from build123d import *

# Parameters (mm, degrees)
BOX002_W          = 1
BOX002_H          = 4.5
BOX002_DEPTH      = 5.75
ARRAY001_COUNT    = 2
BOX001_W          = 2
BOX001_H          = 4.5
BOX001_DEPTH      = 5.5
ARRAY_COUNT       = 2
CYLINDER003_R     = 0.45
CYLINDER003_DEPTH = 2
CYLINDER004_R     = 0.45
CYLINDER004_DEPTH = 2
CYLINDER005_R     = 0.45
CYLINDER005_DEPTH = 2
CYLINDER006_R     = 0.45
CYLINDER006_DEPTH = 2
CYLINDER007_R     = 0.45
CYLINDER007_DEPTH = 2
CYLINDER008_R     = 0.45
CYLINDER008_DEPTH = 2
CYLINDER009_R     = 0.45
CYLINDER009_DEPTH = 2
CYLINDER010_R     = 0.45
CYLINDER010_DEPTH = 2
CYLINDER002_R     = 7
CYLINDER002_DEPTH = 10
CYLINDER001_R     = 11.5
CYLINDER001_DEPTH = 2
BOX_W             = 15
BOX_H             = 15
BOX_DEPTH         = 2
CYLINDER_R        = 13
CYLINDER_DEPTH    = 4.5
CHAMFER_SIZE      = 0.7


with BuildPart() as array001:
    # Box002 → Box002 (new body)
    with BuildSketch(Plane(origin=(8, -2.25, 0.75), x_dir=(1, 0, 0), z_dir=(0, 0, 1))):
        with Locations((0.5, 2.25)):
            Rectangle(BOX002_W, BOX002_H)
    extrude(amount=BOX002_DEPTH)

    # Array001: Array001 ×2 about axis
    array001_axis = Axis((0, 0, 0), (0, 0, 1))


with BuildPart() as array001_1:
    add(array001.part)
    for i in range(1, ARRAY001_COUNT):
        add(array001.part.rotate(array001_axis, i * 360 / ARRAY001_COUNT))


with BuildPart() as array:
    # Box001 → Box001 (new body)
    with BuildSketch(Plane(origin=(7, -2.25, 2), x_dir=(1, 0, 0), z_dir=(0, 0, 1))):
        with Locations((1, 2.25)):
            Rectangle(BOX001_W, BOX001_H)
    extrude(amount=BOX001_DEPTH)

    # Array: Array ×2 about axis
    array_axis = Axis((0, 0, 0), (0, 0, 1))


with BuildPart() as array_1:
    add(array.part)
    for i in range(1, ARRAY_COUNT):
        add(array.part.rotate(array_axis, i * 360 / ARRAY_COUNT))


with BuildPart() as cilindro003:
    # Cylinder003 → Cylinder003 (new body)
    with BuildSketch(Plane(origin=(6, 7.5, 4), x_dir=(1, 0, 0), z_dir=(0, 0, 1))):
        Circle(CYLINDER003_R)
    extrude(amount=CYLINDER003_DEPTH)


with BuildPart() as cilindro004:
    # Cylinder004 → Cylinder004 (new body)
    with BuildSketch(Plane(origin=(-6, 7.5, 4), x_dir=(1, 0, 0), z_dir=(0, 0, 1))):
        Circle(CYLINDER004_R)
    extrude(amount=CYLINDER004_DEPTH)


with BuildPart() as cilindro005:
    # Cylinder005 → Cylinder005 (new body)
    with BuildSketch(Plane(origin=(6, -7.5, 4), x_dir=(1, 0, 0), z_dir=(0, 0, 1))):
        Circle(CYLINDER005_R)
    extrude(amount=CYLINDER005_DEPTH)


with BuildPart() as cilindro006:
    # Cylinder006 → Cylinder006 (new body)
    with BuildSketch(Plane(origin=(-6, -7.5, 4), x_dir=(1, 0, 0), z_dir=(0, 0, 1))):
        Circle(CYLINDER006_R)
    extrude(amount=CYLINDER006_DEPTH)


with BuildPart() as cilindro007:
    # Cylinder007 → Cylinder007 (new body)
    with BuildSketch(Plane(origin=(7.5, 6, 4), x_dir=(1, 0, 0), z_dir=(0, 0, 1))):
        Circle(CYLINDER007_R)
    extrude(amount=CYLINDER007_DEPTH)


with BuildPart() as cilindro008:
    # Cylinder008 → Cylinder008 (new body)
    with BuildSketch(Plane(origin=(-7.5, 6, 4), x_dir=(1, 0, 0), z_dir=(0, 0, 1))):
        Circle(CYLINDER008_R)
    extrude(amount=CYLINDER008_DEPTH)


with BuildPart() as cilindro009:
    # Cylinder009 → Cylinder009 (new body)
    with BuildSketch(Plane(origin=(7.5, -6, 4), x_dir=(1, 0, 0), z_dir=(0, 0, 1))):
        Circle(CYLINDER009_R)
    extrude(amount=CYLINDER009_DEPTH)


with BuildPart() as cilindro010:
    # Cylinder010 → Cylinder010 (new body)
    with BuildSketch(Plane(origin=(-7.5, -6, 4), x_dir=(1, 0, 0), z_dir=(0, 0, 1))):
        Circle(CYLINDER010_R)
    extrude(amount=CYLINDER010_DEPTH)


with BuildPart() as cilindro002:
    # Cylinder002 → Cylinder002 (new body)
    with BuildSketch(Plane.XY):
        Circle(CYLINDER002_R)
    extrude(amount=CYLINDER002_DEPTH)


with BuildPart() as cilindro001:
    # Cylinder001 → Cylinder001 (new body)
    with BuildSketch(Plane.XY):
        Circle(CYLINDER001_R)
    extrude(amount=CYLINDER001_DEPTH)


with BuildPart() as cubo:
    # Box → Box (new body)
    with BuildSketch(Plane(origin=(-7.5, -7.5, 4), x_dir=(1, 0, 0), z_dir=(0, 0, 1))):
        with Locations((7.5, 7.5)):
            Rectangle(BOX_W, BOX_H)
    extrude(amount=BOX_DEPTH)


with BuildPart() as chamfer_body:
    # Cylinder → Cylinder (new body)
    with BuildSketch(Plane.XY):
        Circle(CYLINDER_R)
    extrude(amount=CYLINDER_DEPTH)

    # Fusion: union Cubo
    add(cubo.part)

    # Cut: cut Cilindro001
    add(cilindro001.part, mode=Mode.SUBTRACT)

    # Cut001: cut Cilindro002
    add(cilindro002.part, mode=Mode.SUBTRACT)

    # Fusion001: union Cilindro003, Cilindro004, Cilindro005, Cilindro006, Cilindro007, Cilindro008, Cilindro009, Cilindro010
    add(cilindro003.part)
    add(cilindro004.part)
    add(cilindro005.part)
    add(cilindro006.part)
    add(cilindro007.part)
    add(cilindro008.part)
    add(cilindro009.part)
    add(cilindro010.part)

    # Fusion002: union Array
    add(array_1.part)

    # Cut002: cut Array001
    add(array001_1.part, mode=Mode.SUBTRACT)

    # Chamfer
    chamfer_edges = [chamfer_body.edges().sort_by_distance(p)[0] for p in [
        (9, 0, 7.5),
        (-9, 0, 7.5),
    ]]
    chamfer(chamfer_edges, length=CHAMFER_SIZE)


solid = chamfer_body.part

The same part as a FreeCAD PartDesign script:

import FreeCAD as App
import Part
import Sketcher
Q = App.Units.Quantity


def edges_at(feature, points):
    """Names of the edges that pass closest to the given points."""
    edges = feature.Shape.Edges
    near = lambda p: min(range(len(edges)), key=lambda i: edges[i].distToShape(Part.Vertex(*p))[0])
    return sorted({f"Edge{near(p) + 1}" for p in points})

doc = App.newDocument("Part")
body = doc.addObject("PartDesign::Body", "Body")

# Sketch on XY plane
sketch1 = body.newObject("Sketcher::SketchObject", "Sketch")
sketch1.AttachmentSupport = (doc.getObject("XY_Plane"), [""])
sketch1.MapMode = "FlatFace"
sketch1.AttachmentOffset = App.Placement(App.Vector(0, 0, 0.75), App.Rotation())
sketch1.addGeometry(Part.LineSegment(App.Vector(8, 2.2, 0), App.Vector(8, -2.2, 0)), False)
sketch1.addGeometry(Part.LineSegment(App.Vector(8, -2.2, 0), App.Vector(9, -2.2, 0)), False)
sketch1.addGeometry(Part.LineSegment(App.Vector(9, -2.2, 0), App.Vector(9, 2.2, 0)), False)
sketch1.addGeometry(Part.LineSegment(App.Vector(9, 2.2, 0), App.Vector(8, 2.2, 0)), False)
sketch1.addConstraint(Sketcher.Constraint("Coincident", 0, 2, 1, 1))
sketch1.addConstraint(Sketcher.Constraint("Coincident", 1, 2, 2, 1))
sketch1.addConstraint(Sketcher.Constraint("Coincident", 2, 2, 3, 1))
sketch1.addConstraint(Sketcher.Constraint("Coincident", 3, 2, 0, 1))
sketch1.addConstraint(Sketcher.Constraint("Vertical", 0))
sketch1.addConstraint(Sketcher.Constraint("Horizontal", 1))
sketch1.addConstraint(Sketcher.Constraint("Vertical", 2))
sketch1.addConstraint(Sketcher.Constraint("Horizontal", 3))
sketch1.addConstraint(Sketcher.Constraint("DistanceX", 1, 1, 1, 2, Q("1 mm")))
sketch1.addConstraint(Sketcher.Constraint("DistanceY", 0, 2, 0, 1, Q("4.5 mm")))
sketch1.addConstraint(Sketcher.Constraint("DistanceX", -1, 1, 0, 2, Q("8 mm")))
sketch1.addConstraint(Sketcher.Constraint("DistanceY", 0, 2, -1, 1, Q("2.25 mm")))
pad1 = body.newObject("PartDesign::Pad", "Pad")
pad1.Profile = sketch1
pad1.Length = 5.75
body2 = doc.addObject("PartDesign::Body", "Body001")
body2.AllowCompound = True
doc.recompute()

body2.BaseFeature = body
doc.recompute()

body.Placement = App.Placement(App.Vector(0, 0, 0), App.Rotation(App.Vector(0, 0, 1), 180))
boolean = body2.newObject("PartDesign::Boolean", "Boolean")
boolean.Type = "Fuse"
boolean.addObjects([body])
body3 = doc.addObject("PartDesign::Body", "Body002")

# Sketch on XY plane
sketch2 = body3.newObject("Sketcher::SketchObject", "Sketch001")
sketch2.AttachmentSupport = (doc.getObject("XY_Plane002"), [""])
sketch2.MapMode = "FlatFace"
sketch2.AttachmentOffset = App.Placement(App.Vector(0, 0, 2), App.Rotation())
sketch2.addGeometry(Part.LineSegment(App.Vector(7, 2.2, 0), App.Vector(7, -2.2, 0)), False)
sketch2.addGeometry(Part.LineSegment(App.Vector(7, -2.2, 0), App.Vector(9, -2.2, 0)), False)
sketch2.addGeometry(Part.LineSegment(App.Vector(9, -2.2, 0), App.Vector(9, 2.2, 0)), False)
sketch2.addGeometry(Part.LineSegment(App.Vector(9, 2.2, 0), App.Vector(7, 2.2, 0)), False)
sketch2.addConstraint(Sketcher.Constraint("Coincident", 0, 2, 1, 1))
sketch2.addConstraint(Sketcher.Constraint("Coincident", 1, 2, 2, 1))
sketch2.addConstraint(Sketcher.Constraint("Coincident", 2, 2, 3, 1))
sketch2.addConstraint(Sketcher.Constraint("Coincident", 3, 2, 0, 1))
sketch2.addConstraint(Sketcher.Constraint("Vertical", 0))
sketch2.addConstraint(Sketcher.Constraint("Horizontal", 1))
sketch2.addConstraint(Sketcher.Constraint("Vertical", 2))
sketch2.addConstraint(Sketcher.Constraint("Horizontal", 3))
sketch2.addConstraint(Sketcher.Constraint("DistanceX", 1, 1, 1, 2, Q("2 mm")))
sketch2.addConstraint(Sketcher.Constraint("DistanceY", 0, 2, 0, 1, Q("4.5 mm")))
sketch2.addConstraint(Sketcher.Constraint("DistanceX", -1, 1, 0, 2, Q("7 mm")))
sketch2.addConstraint(Sketcher.Constraint("DistanceY", 0, 2, -1, 1, Q("2.25 mm")))
pad2 = body3.newObject("PartDesign::Pad", "Pad001")
pad2.Profile = sketch2
pad2.Length = 5.5
body4 = doc.addObject("PartDesign::Body", "Body003")
body4.AllowCompound = True
doc.recompute()

body4.BaseFeature = body3
doc.recompute()

body3.Placement = App.Placement(App.Vector(0, 0, 0), App.Rotation(App.Vector(0, 0, 1), 180))
boolean2 = body4.newObject("PartDesign::Boolean", "Boolean001")
boolean2.Type = "Fuse"
boolean2.addObjects([body3])
body5 = doc.addObject("PartDesign::Body", "Body004")

# Sketch on XY plane
sketch3 = body5.newObject("Sketcher::SketchObject", "Sketch002")
sketch3.AttachmentSupport = (doc.getObject("XY_Plane004"), [""])
sketch3.MapMode = "FlatFace"
sketch3.AttachmentOffset = App.Placement(App.Vector(0, 0, 4), App.Rotation())
sketch3.addGeometry(Part.Circle(App.Vector(6, 7.5, 0), App.Vector(0, 0, 1), 0.45), False)
sketch3.addConstraint(Sketcher.Constraint("Diameter", 0, Q("0.9 mm")))
sketch3.addConstraint(Sketcher.Constraint("DistanceX", -1, 1, 0, 3, Q("6 mm")))
sketch3.addConstraint(Sketcher.Constraint("DistanceY", -1, 1, 0, 3, Q("7.5 mm")))
pad3 = body5.newObject("PartDesign::Pad", "Pad002")
pad3.Profile = sketch3
pad3.Length = 2
body6 = doc.addObject("PartDesign::Body", "Body005")

# Sketch on XY plane
sketch4 = body6.newObject("Sketcher::SketchObject", "Sketch003")
sketch4.AttachmentSupport = (doc.getObject("XY_Plane005"), [""])
sketch4.MapMode = "FlatFace"
sketch4.AttachmentOffset = App.Placement(App.Vector(0, 0, 4), App.Rotation())
sketch4.addGeometry(Part.Circle(App.Vector(-6, 7.5, 0), App.Vector(0, 0, 1), 0.45), False)
sketch4.addConstraint(Sketcher.Constraint("Diameter", 0, Q("0.9 mm")))
sketch4.addConstraint(Sketcher.Constraint("DistanceX", 0, 3, -1, 1, Q("6 mm")))
sketch4.addConstraint(Sketcher.Constraint("DistanceY", -1, 1, 0, 3, Q("7.5 mm")))
pad4 = body6.newObject("PartDesign::Pad", "Pad003")
pad4.Profile = sketch4
pad4.Length = 2
body7 = doc.addObject("PartDesign::Body", "Body006")

# Sketch on XY plane
sketch5 = body7.newObject("Sketcher::SketchObject", "Sketch004")
sketch5.AttachmentSupport = (doc.getObject("XY_Plane006"), [""])
sketch5.MapMode = "FlatFace"
sketch5.AttachmentOffset = App.Placement(App.Vector(0, 0, 4), App.Rotation())
sketch5.addGeometry(Part.Circle(App.Vector(6, -7.5, 0), App.Vector(0, 0, 1), 0.45), False)
sketch5.addConstraint(Sketcher.Constraint("Diameter", 0, Q("0.9 mm")))
sketch5.addConstraint(Sketcher.Constraint("DistanceX", -1, 1, 0, 3, Q("6 mm")))
sketch5.addConstraint(Sketcher.Constraint("DistanceY", 0, 3, -1, 1, Q("7.5 mm")))
pad5 = body7.newObject("PartDesign::Pad", "Pad004")
pad5.Profile = sketch5
pad5.Length = 2
body8 = doc.addObject("PartDesign::Body", "Body007")

# Sketch on XY plane
sketch6 = body8.newObject("Sketcher::SketchObject", "Sketch005")
sketch6.AttachmentSupport = (doc.getObject("XY_Plane007"), [""])
sketch6.MapMode = "FlatFace"
sketch6.AttachmentOffset = App.Placement(App.Vector(0, 0, 4), App.Rotation())
sketch6.addGeometry(Part.Circle(App.Vector(-6, -7.5, 0), App.Vector(0, 0, 1), 0.45), False)
sketch6.addConstraint(Sketcher.Constraint("Diameter", 0, Q("0.9 mm")))
sketch6.addConstraint(Sketcher.Constraint("DistanceX", 0, 3, -1, 1, Q("6 mm")))
sketch6.addConstraint(Sketcher.Constraint("DistanceY", 0, 3, -1, 1, Q("7.5 mm")))
pad6 = body8.newObject("PartDesign::Pad", "Pad005")
pad6.Profile = sketch6
pad6.Length = 2
body9 = doc.addObject("PartDesign::Body", "Body008")

# Sketch on XY plane
sketch7 = body9.newObject("Sketcher::SketchObject", "Sketch006")
sketch7.AttachmentSupport = (doc.getObject("XY_Plane008"), [""])
sketch7.MapMode = "FlatFace"
sketch7.AttachmentOffset = App.Placement(App.Vector(0, 0, 4), App.Rotation())
sketch7.addGeometry(Part.Circle(App.Vector(7.5, 6, 0), App.Vector(0, 0, 1), 0.45), False)
sketch7.addConstraint(Sketcher.Constraint("Diameter", 0, Q("0.9 mm")))
sketch7.addConstraint(Sketcher.Constraint("DistanceY", -1, 1, 0, 3, Q("6 mm")))
sketch7.addConstraint(Sketcher.Constraint("DistanceX", -1, 1, 0, 3, Q("7.5 mm")))
pad7 = body9.newObject("PartDesign::Pad", "Pad006")
pad7.Profile = sketch7
pad7.Length = 2
body10 = doc.addObject("PartDesign::Body", "Body009")

# Sketch on XY plane
sketch8 = body10.newObject("Sketcher::SketchObject", "Sketch007")
sketch8.AttachmentSupport = (doc.getObject("XY_Plane009"), [""])
sketch8.MapMode = "FlatFace"
sketch8.AttachmentOffset = App.Placement(App.Vector(0, 0, 4), App.Rotation())
sketch8.addGeometry(Part.Circle(App.Vector(-7.5, 6, 0), App.Vector(0, 0, 1), 0.45), False)
sketch8.addConstraint(Sketcher.Constraint("Diameter", 0, Q("0.9 mm")))
sketch8.addConstraint(Sketcher.Constraint("DistanceY", -1, 1, 0, 3, Q("6 mm")))
sketch8.addConstraint(Sketcher.Constraint("DistanceX", 0, 3, -1, 1, Q("7.5 mm")))
pad8 = body10.newObject("PartDesign::Pad", "Pad007")
pad8.Profile = sketch8
pad8.Length = 2
body11 = doc.addObject("PartDesign::Body", "Body010")

# Sketch on XY plane
sketch9 = body11.newObject("Sketcher::SketchObject", "Sketch008")
sketch9.AttachmentSupport = (doc.getObject("XY_Plane010"), [""])
sketch9.MapMode = "FlatFace"
sketch9.AttachmentOffset = App.Placement(App.Vector(0, 0, 4), App.Rotation())
sketch9.addGeometry(Part.Circle(App.Vector(7.5, -6, 0), App.Vector(0, 0, 1), 0.45), False)
sketch9.addConstraint(Sketcher.Constraint("Diameter", 0, Q("0.9 mm")))
sketch9.addConstraint(Sketcher.Constraint("DistanceY", 0, 3, -1, 1, Q("6 mm")))
sketch9.addConstraint(Sketcher.Constraint("DistanceX", -1, 1, 0, 3, Q("7.5 mm")))
pad9 = body11.newObject("PartDesign::Pad", "Pad008")
pad9.Profile = sketch9
pad9.Length = 2
body12 = doc.addObject("PartDesign::Body", "Body011")

# Sketch on XY plane
sketch10 = body12.newObject("Sketcher::SketchObject", "Sketch009")
sketch10.AttachmentSupport = (doc.getObject("XY_Plane011"), [""])
sketch10.MapMode = "FlatFace"
sketch10.AttachmentOffset = App.Placement(App.Vector(0, 0, 4), App.Rotation())
sketch10.addGeometry(Part.Circle(App.Vector(-7.5, -6, 0), App.Vector(0, 0, 1), 0.45), False)
sketch10.addConstraint(Sketcher.Constraint("Diameter", 0, Q("0.9 mm")))
sketch10.addConstraint(Sketcher.Constraint("DistanceY", 0, 3, -1, 1, Q("6 mm")))
sketch10.addConstraint(Sketcher.Constraint("DistanceX", 0, 3, -1, 1, Q("7.5 mm")))
pad10 = body12.newObject("PartDesign::Pad", "Pad009")
pad10.Profile = sketch10
pad10.Length = 2
body13 = doc.addObject("PartDesign::Body", "Body012")

# Sketch on XY plane
sketch11 = body13.newObject("Sketcher::SketchObject", "Sketch010")
sketch11.AttachmentSupport = (doc.getObject("XY_Plane012"), [""])
sketch11.MapMode = "FlatFace"
sketch11.addGeometry(Part.Circle(App.Vector(0, 0, 0), App.Vector(0, 0, 1), 7), False)
sketch11.addConstraint(Sketcher.Constraint("Coincident", 0, 3, -1, 1))
sketch11.addConstraint(Sketcher.Constraint("Diameter", 0, Q("14 mm")))
pad11 = body13.newObject("PartDesign::Pad", "Pad010")
pad11.Profile = sketch11
pad11.Length = 10
body14 = doc.addObject("PartDesign::Body", "Body013")

# Sketch on XY plane
sketch12 = body14.newObject("Sketcher::SketchObject", "Sketch011")
sketch12.AttachmentSupport = (doc.getObject("XY_Plane013"), [""])
sketch12.MapMode = "FlatFace"
sketch12.addGeometry(Part.Circle(App.Vector(0, 0, 0), App.Vector(0, 0, 1), 12), False)
sketch12.addConstraint(Sketcher.Constraint("Coincident", 0, 3, -1, 1))
sketch12.addConstraint(Sketcher.Constraint("Diameter", 0, Q("23 mm")))
pad12 = body14.newObject("PartDesign::Pad", "Pad011")
pad12.Profile = sketch12
pad12.Length = 2
body15 = doc.addObject("PartDesign::Body", "Body014")

# Sketch on XY plane
sketch13 = body15.newObject("Sketcher::SketchObject", "Sketch012")
sketch13.AttachmentSupport = (doc.getObject("XY_Plane014"), [""])
sketch13.MapMode = "FlatFace"
sketch13.AttachmentOffset = App.Placement(App.Vector(0, 0, 4), App.Rotation())
sketch13.addGeometry(Part.LineSegment(App.Vector(-8, 8, 0), App.Vector(-8, -8, 0)), False)
sketch13.addGeometry(Part.LineSegment(App.Vector(-8, -8, 0), App.Vector(8, -8, 0)), False)
sketch13.addGeometry(Part.LineSegment(App.Vector(8, -8, 0), App.Vector(8, 8, 0)), False)
sketch13.addGeometry(Part.LineSegment(App.Vector(8, 8, 0), App.Vector(-8, 8, 0)), False)
sketch13.addConstraint(Sketcher.Constraint("Coincident", 0, 2, 1, 1))
sketch13.addConstraint(Sketcher.Constraint("Coincident", 1, 2, 2, 1))
sketch13.addConstraint(Sketcher.Constraint("Coincident", 2, 2, 3, 1))
sketch13.addConstraint(Sketcher.Constraint("Coincident", 3, 2, 0, 1))
sketch13.addConstraint(Sketcher.Constraint("Vertical", 0))
sketch13.addConstraint(Sketcher.Constraint("Horizontal", 1))
sketch13.addConstraint(Sketcher.Constraint("Vertical", 2))
sketch13.addConstraint(Sketcher.Constraint("Horizontal", 3))
sketch13.addConstraint(Sketcher.Constraint("Symmetric", 0, 2, 2, 2, -1, 1))
sketch13.addConstraint(Sketcher.Constraint("Equal", 3, 0))
sketch13.addConstraint(Sketcher.Constraint("DistanceX", 1, 1, 1, 2, Q("15 mm")))
pad13 = body15.newObject("PartDesign::Pad", "Pad012")
pad13.Profile = sketch13
pad13.Length = 2
body16 = doc.addObject("PartDesign::Body", "Body015")

# Sketch on XY plane
sketch14 = body16.newObject("Sketcher::SketchObject", "Sketch013")
sketch14.AttachmentSupport = (doc.getObject("XY_Plane015"), [""])
sketch14.MapMode = "FlatFace"
sketch14.addGeometry(Part.Circle(App.Vector(0, 0, 0), App.Vector(0, 0, 1), 13), False)
sketch14.addConstraint(Sketcher.Constraint("Coincident", 0, 3, -1, 1))
sketch14.addConstraint(Sketcher.Constraint("Diameter", 0, Q("26 mm")))
pad14 = body16.newObject("PartDesign::Pad", "Pad013")
pad14.Profile = sketch14
pad14.Length = 4.5
doc.recompute()

boolean3 = body16.newObject("PartDesign::Boolean", "Boolean002")
boolean3.Type = "Fuse"
boolean3.addObjects([body15])
doc.recompute()

boolean4 = body16.newObject("PartDesign::Boolean", "Boolean003")
boolean4.Type = "Cut"
boolean4.addObjects([body14])
doc.recompute()

boolean5 = body16.newObject("PartDesign::Boolean", "Boolean004")
boolean5.Type = "Cut"
boolean5.addObjects([body13])
doc.recompute()

boolean6 = body16.newObject("PartDesign::Boolean", "Boolean005")
boolean6.Type = "Fuse"
boolean6.addObjects([body5])
doc.recompute()

boolean7 = body16.newObject("PartDesign::Boolean", "Boolean006")
boolean7.Type = "Fuse"
boolean7.addObjects([body6])
doc.recompute()

boolean8 = body16.newObject("PartDesign::Boolean", "Boolean007")
boolean8.Type = "Fuse"
boolean8.addObjects([body7])
doc.recompute()

boolean9 = body16.newObject("PartDesign::Boolean", "Boolean008")
boolean9.Type = "Fuse"
boolean9.addObjects([body8])
doc.recompute()

boolean10 = body16.newObject("PartDesign::Boolean", "Boolean009")
boolean10.Type = "Fuse"
boolean10.addObjects([body9])
doc.recompute()

boolean11 = body16.newObject("PartDesign::Boolean", "Boolean010")
boolean11.Type = "Fuse"
boolean11.addObjects([body10])
doc.recompute()

boolean12 = body16.newObject("PartDesign::Boolean", "Boolean011")
boolean12.Type = "Fuse"
boolean12.addObjects([body11])
doc.recompute()

boolean13 = body16.newObject("PartDesign::Boolean", "Boolean012")
boolean13.Type = "Fuse"
boolean13.addObjects([body12])
doc.recompute()

boolean14 = body16.newObject("PartDesign::Boolean", "Boolean013")
boolean14.Type = "Fuse"
boolean14.addObjects([body4])
doc.recompute()

boolean15 = body16.newObject("PartDesign::Boolean", "Boolean014")
boolean15.Type = "Cut"
boolean15.addObjects([body2])
doc.recompute()

chamfer = body16.newObject("PartDesign::Chamfer", "Chamfer")
chamfer.Base = (boolean15, edges_at(boolean15, [(9, 0, 7.5), (-9, 0, 7.5)]))
chamfer.Size = 0.7

doc.recompute()
